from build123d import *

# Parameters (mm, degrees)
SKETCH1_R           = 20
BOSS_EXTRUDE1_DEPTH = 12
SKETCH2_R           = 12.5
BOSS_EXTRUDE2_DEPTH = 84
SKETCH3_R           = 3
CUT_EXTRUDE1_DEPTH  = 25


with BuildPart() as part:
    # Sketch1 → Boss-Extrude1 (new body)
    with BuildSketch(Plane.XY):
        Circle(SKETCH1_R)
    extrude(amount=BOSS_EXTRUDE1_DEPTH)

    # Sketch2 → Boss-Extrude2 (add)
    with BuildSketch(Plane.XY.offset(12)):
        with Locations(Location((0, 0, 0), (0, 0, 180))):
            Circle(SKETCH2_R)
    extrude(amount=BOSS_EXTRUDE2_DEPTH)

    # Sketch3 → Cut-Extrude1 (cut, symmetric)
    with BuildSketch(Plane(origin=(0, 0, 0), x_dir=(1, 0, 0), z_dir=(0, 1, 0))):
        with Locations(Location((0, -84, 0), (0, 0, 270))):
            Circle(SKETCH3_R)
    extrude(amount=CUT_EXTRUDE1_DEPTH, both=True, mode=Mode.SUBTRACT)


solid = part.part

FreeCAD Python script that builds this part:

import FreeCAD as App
import Part
import Sketcher

V = App.Vector

doc = App.newDocument("Part")
body = doc.addObject("PartDesign::Body", "Body")

# Sketch on XY plane
sketch1 = body.newObject("Sketcher::SketchObject", "Sketch")
sketch1.AttachmentSupport = (doc.getObject("XY_Plane"), [""])
sketch1.MapMode = "FlatFace"
sketch1.addGeometry(Part.Circle(V(0, 0, 0), V(0, 0, 1), 20), False)
sketch1.addConstraint([
    Sketcher.Constraint("Coincident", 0, 3, -1, 1),
    Sketcher.Constraint("Diameter", 0, 40.0),
])
pad1 = body.newObject("PartDesign::Pad", "Pad")
pad1.Profile = sketch1
pad1.Length = 12

# Sketch on XY plane
sketch2 = body.newObject("Sketcher::SketchObject", "Sketch001")
sketch2.AttachmentSupport = (doc.getObject("XY_Plane"), [""])
sketch2.MapMode = "FlatFace"
sketch2.AttachmentOffset = App.Placement(V(0, 0, 12), App.Rotation())
sketch2.addGeometry(Part.Circle(V(0, 0, 0), V(0, 0, 1), 12), False)
sketch2.addConstraint([
    Sketcher.Constraint("Coincident", 0, 3, -1, 1),
    Sketcher.Constraint("Diameter", 0, 25.0),
])
pad2 = body.newObject("PartDesign::Pad", "Pad001")
pad2.Profile = sketch2
pad2.Length = 84

# Sketch on XZ plane
sketch3 = body.newObject("Sketcher::SketchObject", "Sketch002")
sketch3.AttachmentSupport = (doc.getObject("XZ_Plane"), [""])
sketch3.MapMode = "FlatFace"
sketch3.addGeometry(Part.Circle(V(0, 84, 0), V(0, 0, 1), 3), False)
sketch3.addConstraint([
    Sketcher.Constraint("PointOnObject", 0, 3, -2),
    Sketcher.Constraint("Diameter", 0, 6.0),
    Sketcher.Constraint("DistanceY", -1, 1, 0, 3, 84.0),
])
pocket1 = body.newObject("PartDesign::Pocket", "Pocket")
pocket1.Profile = sketch3
pocket1.Length = 50
pocket1.Midplane = True

doc.recompute()
